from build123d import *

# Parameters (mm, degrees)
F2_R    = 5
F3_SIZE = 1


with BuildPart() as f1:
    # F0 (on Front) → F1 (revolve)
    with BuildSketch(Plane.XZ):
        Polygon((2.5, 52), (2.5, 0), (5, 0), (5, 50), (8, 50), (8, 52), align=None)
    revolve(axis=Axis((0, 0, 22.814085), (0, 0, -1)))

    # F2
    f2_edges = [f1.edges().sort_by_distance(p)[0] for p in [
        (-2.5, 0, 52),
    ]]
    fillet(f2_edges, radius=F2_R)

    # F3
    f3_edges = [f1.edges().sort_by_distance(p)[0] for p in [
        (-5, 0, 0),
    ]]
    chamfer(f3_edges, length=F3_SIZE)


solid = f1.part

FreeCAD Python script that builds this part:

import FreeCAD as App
import Part
import Sketcher
from FreeCAD import Vector


def edges_at(feature, points):
    """Names of the edges that pass closest to the given points."""
    edges = feature.Shape.Edges
    near = lambda p: min(range(len(edges)), key=lambda i: edges[i].distToShape(Part.Vertex(*p))[0])
    return sorted({f"Edge{near(p) + 1}" for p in points})


def add_polygon(sketch, points):
    """Adds a closed chain of lines whose ends are joined by coincident constraints."""
    first, n = sketch.GeometryCount, len(points)
    for a, b in zip(points, points[1:] + points[:1]):
        sketch.addGeometry(Part.LineSegment(App.Vector(*a, 0), App.Vector(*b, 0)), False)
    for i in range(n):
        sketch.addConstraint(Sketcher.Constraint("Coincident", first + i, 2, first + (i + 1) % n, 1))

doc = App.newDocument("Part")
body = doc.addObject("PartDesign::Body", "Body")

# Sketch on XZ plane
sketch1 = body.newObject("Sketcher::SketchObject", "Sketch")
sketch1.AttachmentSupport = (doc.getObject("XZ_Plane"), [""])
sketch1.MapMode = "FlatFace"
add_polygon(sketch1, [(2.5, 52), (2.5, 0), (5, 0), (5, 50), (8, 50), (8, 52)])  # lines 0-5
sketch1.addConstraint([
    Sketcher.Constraint("Vertical", 0),
    Sketcher.Constraint("Horizontal", 1),
    Sketcher.Constraint("Vertical", 2),
    Sketcher.Constraint("Horizontal", 3),
    Sketcher.Constraint("Vertical", 4),
    Sketcher.Constraint("Horizontal", 5),
    Sketcher.Constraint("PointOnObject", 0, 2, -1),
    Sketcher.Constraint("DistanceX", 3, 1, 3, 2, 3.0),
    Sketcher.Constraint("DistanceY", 0, 2, 0, 1, 52.0),
    Sketcher.Constraint("DistanceY", 2, 1, 2, 2, 50.0),
    Sketcher.Constraint("DistanceX", 1, 1, 1, 2, 2.5),
    Sketcher.Constraint("DistanceX", -1, 1, 1, 2, 5.0),
])
revolution = body.newObject("PartDesign::Revolution", "Revolution")
revolution.Profile = sketch1
revolution.ReferenceAxis = (sketch1, ["V_Axis"])
revolution.Angle = 360
doc.recompute()

fillet = body.newObject("PartDesign::Fillet", "Fillet")
fillet.Base = (revolution, edges_at(revolution, [(-2.5, 0, 52)]))
fillet.Radius = 5
doc.recompute()

chamfer = body.newObject("PartDesign::Chamfer", "Chamfer")
chamfer.Base = (fillet, edges_at(fillet, [(-5, 0, 0)]))
chamfer.Size = 1

doc.recompute()
